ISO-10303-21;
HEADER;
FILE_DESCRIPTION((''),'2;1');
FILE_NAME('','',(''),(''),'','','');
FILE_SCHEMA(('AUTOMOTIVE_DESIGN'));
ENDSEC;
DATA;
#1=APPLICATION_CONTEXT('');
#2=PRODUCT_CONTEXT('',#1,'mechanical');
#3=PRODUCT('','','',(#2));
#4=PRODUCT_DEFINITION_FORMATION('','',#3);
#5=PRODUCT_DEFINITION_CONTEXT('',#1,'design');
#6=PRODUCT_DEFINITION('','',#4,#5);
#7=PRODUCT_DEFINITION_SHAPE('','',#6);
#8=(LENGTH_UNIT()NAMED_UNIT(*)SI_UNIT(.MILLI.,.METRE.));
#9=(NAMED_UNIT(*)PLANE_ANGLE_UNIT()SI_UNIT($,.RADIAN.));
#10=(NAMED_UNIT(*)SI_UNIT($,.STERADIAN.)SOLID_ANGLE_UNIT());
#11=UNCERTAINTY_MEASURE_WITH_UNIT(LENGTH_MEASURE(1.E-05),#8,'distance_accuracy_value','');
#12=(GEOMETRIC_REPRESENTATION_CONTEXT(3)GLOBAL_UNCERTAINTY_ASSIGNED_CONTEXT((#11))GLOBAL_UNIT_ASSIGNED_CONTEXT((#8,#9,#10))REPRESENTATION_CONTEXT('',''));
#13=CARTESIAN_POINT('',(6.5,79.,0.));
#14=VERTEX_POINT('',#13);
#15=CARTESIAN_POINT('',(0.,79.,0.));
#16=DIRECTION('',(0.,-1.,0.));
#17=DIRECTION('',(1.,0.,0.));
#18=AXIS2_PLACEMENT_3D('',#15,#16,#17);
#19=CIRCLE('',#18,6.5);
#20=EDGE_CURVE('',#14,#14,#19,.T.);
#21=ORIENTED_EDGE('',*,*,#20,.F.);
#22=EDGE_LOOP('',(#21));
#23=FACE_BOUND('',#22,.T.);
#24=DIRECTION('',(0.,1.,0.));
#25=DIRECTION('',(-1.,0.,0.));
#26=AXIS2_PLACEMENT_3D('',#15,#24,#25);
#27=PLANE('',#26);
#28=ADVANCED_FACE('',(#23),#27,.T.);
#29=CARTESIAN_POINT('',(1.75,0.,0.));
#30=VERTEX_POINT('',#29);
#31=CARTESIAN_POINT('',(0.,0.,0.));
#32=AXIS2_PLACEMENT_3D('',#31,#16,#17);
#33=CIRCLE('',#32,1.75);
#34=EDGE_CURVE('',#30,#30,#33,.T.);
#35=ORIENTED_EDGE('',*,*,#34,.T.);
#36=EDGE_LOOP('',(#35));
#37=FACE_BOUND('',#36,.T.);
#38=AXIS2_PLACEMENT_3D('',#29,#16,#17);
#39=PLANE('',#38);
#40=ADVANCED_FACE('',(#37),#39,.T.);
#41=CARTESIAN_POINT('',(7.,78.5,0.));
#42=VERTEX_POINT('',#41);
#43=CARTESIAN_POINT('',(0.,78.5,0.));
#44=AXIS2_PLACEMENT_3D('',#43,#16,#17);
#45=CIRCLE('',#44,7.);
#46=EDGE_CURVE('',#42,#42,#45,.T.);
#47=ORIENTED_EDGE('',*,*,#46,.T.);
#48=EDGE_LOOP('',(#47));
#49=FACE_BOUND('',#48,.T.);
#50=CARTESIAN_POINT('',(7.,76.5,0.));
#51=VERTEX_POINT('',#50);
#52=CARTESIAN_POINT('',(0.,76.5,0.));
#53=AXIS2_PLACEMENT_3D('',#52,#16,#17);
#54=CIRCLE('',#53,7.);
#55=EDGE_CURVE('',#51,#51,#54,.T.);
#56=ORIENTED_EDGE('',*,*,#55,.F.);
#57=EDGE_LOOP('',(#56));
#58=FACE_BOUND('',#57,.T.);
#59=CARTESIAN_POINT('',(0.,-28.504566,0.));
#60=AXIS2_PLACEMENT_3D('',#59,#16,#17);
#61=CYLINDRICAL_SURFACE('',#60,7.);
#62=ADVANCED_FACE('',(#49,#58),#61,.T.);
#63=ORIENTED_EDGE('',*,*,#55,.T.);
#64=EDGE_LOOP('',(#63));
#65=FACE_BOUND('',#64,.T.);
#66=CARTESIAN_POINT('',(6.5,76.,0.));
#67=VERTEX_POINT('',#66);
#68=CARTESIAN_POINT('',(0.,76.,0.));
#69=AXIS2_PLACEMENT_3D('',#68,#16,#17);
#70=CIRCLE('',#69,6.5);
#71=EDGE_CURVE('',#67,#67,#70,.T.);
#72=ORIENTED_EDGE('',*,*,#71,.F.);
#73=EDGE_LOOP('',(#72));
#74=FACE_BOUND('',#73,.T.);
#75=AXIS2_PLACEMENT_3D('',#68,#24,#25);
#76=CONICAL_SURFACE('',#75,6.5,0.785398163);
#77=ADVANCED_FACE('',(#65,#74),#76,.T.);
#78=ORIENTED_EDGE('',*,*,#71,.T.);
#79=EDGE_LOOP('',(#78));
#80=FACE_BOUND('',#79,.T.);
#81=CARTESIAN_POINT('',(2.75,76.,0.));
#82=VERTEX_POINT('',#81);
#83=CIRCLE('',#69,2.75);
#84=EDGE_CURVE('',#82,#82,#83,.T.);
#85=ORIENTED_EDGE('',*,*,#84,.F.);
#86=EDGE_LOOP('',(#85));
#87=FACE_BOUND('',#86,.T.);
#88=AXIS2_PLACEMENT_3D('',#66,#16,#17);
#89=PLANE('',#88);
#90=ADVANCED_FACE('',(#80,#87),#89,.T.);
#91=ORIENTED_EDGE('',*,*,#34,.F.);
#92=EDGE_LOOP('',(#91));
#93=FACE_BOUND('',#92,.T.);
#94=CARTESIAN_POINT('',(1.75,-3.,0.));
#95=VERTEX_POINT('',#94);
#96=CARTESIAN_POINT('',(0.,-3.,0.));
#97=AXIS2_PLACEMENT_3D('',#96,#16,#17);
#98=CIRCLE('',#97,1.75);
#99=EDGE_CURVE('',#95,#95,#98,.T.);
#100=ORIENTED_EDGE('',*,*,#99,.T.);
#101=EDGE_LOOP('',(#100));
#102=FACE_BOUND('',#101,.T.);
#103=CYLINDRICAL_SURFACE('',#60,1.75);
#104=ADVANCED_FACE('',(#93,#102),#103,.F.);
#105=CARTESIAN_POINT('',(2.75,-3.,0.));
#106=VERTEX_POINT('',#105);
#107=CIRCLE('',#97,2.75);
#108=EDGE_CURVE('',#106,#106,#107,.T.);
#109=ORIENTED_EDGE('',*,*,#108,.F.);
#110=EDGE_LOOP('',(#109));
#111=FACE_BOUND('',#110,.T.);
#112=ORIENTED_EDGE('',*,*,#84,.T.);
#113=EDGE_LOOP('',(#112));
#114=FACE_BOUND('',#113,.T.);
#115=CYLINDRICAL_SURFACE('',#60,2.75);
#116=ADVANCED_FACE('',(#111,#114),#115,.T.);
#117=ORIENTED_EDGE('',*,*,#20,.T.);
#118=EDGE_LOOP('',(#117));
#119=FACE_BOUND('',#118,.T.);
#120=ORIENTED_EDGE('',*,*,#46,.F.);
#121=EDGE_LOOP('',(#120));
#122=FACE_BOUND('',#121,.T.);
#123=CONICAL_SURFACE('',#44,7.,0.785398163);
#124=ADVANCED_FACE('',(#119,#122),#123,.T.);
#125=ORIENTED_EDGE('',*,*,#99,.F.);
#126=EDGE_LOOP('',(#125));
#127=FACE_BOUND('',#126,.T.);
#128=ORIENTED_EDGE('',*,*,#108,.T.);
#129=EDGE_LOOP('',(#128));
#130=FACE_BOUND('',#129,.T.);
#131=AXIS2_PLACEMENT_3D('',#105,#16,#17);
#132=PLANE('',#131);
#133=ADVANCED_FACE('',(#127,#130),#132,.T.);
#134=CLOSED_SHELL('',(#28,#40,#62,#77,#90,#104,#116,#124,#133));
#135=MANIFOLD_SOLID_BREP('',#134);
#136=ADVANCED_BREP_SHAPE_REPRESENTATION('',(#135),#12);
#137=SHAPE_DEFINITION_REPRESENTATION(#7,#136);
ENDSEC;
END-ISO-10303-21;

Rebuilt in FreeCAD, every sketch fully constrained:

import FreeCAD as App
import Part
import Sketcher
from FreeCAD import Vector
Q = App.Units.Quantity

doc = App.newDocument("Part")
body = doc.addObject("PartDesign::Body", "Body")

sketch1 = body.newObject("Sketcher::SketchObject", "Sketch")
sketch1.AttachmentSupport = (doc.getObject("XY_Plane"), [""])
sketch1.MapMode = "FlatFace"
sketch1.addGeometry(Part.LineSegment(Vector(0, 79, 0), Vector(0, 0, 0)), False)
sketch1.addGeometry(Part.LineSegment(Vector(0, 0, 0), Vector(1.8, 0, 0)), False)
sketch1.addGeometry(Part.LineSegment(Vector(1.8, 0, 0), Vector(1.8, -3, 0)), False)
sketch1.addGeometry(Part.LineSegment(Vector(1.8, -3, 0), Vector(2.8, -3, 0)), False)
sketch1.addGeometry(Part.LineSegment(Vector(2.8, -3, 0), Vector(2.8, 76, 0)), False)
sketch1.addGeometry(Part.LineSegment(Vector(2.8, 76, 0), Vector(6.5, 76, 0)), False)
sketch1.addGeometry(Part.LineSegment(Vector(6.5, 76, 0), Vector(7, 76.5, 0)), False)
sketch1.addGeometry(Part.LineSegment(Vector(7, 76.5, 0), Vector(7, 78.5, 0)), False)
sketch1.addGeometry(Part.LineSegment(Vector(7, 78.5, 0), Vector(6.5, 79, 0)), False)
sketch1.addGeometry(Part.LineSegment(Vector(6.5, 79, 0), Vector(0, 79, 0)), False)
sketch1.addConstraint(Sketcher.Constraint("Coincident", 0, 2, 1, 1))
sketch1.addConstraint(Sketcher.Constraint("Coincident", 1, 2, 2, 1))
sketch1.addConstraint(Sketcher.Constraint("Coincident", 2, 2, 3, 1))
sketch1.addConstraint(Sketcher.Constraint("Coincident", 3, 2, 4, 1))
sketch1.addConstraint(Sketcher.Constraint("Coincident", 4, 2, 5, 1))
sketch1.addConstraint(Sketcher.Constraint("Coincident", 5, 2, 6, 1))
sketch1.addConstraint(Sketcher.Constraint("Coincident", 6, 2, 7, 1))
sketch1.addConstraint(Sketcher.Constraint("Coincident", 7, 2, 8, 1))
sketch1.addConstraint(Sketcher.Constraint("Coincident", 8, 2, 9, 1))
sketch1.addConstraint(Sketcher.Constraint("Coincident", 9, 2, 0, 1))
sketch1.addConstraint(Sketcher.Constraint("Vertical", 0))
sketch1.addConstraint(Sketcher.Constraint("Horizontal", 1))
sketch1.addConstraint(Sketcher.Constraint("Vertical", 2))
sketch1.addConstraint(Sketcher.Constraint("Horizontal", 3))
sketch1.addConstraint(Sketcher.Constraint("Vertical", 4))
sketch1.addConstraint(Sketcher.Constraint("Horizontal", 5))
sketch1.addConstraint(Sketcher.Constraint("Vertical", 7))
sketch1.addConstraint(Sketcher.Constraint("Horizontal", 9))
sketch1.addConstraint(Sketcher.Constraint("Coincident", 0, 2, -1, 1))
sketch1.addConstraint(Sketcher.Constraint("Perpendicular", 6, 8))
sketch1.addConstraint(Sketcher.Constraint("Vertical", 5, 2, 8, 2))
sketch1.addConstraint(Sketcher.Constraint("Equal", 0, 4))
sketch1.addConstraint(Sketcher.Constraint("Equal", 6, 8))
sketch1.addConstraint(Sketcher.Constraint("DistanceX", 3, 1, 3, 2, Q("1 mm")))
sketch1.addConstraint(Sketcher.Constraint("DistanceY", 0, 2, 0, 1, Q("79 mm")))
sketch1.addConstraint(Sketcher.Constraint("DistanceY", 2, 2, 2, 1, Q("3 mm")))
sketch1.addConstraint(Sketcher.Constraint("DistanceY", 7, 1, 7, 2, Q("2 mm")))
sketch1.addConstraint(Sketcher.Constraint("DistanceX", 9, 2, 9, 1, Q("6.5 mm")))
sketch1.addConstraint(Sketcher.Constraint("DistanceX", 1, 1, 1, 2, Q("1.75 mm")))
revolution = body.newObject("PartDesign::Revolution", "Revolution")
revolution.Profile = sketch1
revolution.ReferenceAxis = (sketch1, ["V_Axis"])
revolution.Angle = 360

doc.recompute()
